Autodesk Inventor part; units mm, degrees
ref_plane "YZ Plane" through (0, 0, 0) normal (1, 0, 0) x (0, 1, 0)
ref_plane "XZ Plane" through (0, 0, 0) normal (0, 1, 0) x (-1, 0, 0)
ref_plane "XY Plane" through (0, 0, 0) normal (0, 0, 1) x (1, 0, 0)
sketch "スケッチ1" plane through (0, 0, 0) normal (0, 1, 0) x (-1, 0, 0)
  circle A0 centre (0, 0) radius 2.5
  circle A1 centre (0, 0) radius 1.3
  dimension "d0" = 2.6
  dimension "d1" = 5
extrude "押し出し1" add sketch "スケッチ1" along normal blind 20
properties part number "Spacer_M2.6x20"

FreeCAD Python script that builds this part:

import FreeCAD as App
import Part
import Sketcher
from FreeCAD import Vector

doc = App.newDocument("Part")
body = doc.addObject("PartDesign::Body", "Body")

# Sketch on XZ plane
sketch1 = body.newObject("Sketcher::SketchObject", "Sketch")
sketch1.AttachmentSupport = (doc.getObject("XZ_Plane"), [""])
sketch1.MapMode = "FlatFace"
sketch1.addGeometry([
    Part.Circle(Vector(0, 0, 0), Vector(0, 0, 1), 2.5),
    Part.Circle(Vector(0, 0, 0), Vector(0, 0, 1), 1.3),
], False)
sketch1.addConstraint([
    Sketcher.Constraint("Coincident", 0, 3, -1, 1),
    Sketcher.Constraint("Coincident", 1, 3, -1, 1),
    Sketcher.Constraint("Diameter", 0, 5.0),
    Sketcher.Constraint("Diameter", 1, 2.6),
])
pad1 = body.newObject("PartDesign::Pad", "Pad")
pad1.Profile = sketch1
pad1.Length = 20
pad1.Reversed = True

doc.recompute()
